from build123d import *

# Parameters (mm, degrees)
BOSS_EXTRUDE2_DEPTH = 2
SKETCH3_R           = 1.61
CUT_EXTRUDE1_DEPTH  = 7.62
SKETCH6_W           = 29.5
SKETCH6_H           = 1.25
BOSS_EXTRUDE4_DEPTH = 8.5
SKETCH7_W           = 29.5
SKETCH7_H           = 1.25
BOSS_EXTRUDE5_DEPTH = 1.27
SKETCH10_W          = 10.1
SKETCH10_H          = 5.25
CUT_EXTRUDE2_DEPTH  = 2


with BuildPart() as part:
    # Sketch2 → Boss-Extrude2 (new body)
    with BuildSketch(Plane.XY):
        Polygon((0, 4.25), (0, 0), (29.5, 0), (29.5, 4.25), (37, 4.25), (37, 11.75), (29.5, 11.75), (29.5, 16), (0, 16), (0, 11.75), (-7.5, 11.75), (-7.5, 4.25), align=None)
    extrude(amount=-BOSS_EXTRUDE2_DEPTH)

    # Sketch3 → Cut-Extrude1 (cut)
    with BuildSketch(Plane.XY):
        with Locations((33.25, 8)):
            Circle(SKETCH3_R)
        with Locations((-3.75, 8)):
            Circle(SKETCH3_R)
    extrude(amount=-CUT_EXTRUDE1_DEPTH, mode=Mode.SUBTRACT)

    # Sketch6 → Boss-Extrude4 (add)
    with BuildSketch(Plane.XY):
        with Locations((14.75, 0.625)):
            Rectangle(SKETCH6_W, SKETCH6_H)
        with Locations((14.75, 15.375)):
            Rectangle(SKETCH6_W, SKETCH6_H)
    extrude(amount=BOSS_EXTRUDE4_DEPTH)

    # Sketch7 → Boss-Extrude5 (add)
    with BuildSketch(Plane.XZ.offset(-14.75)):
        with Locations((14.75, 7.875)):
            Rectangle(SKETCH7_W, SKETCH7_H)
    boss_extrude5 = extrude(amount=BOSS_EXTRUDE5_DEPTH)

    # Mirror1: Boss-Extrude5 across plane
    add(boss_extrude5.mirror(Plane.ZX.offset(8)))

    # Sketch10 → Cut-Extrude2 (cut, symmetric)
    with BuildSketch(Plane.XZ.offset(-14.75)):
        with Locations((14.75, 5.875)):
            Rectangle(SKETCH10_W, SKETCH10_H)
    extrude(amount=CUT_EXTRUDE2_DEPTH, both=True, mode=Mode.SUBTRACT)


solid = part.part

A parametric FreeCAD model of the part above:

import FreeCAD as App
import Part
import Sketcher
from FreeCAD import Vector
Q = App.Units.Quantity

doc = App.newDocument("Part")
params = doc.addObject("Spreadsheet::Sheet", "Params")
for row, (alias, value) in enumerate([
    ("sketch1_width", "29.5 mm"),
    ("sketch1_width2", "7.5 mm"),
    ("pad1_length", "2 mm"),
    ("sketch2_diameter", "3.22 mm"),
    ("pocket1_length", "7.62 mm"),
    ("sketch3_width", "29.5 mm"),
    ("sketch3_height", "1.25 mm"),
    ("pad2_length", "8.5 mm"),
    ("sketch4_width", "29.5 mm"),
    ("sketch4_height", "1.25 mm"),
    ("pad3_length", "1.27 mm"),
    ("sketch5_width", "10.1 mm"),
    ("sketch5_height", "5.25 mm"),
    ("pocket2_length", "4 mm"),
], start=1):
    params.set(f"A{row}", alias)
    params.set(f"B{row}", "=" + value)
    params.setAlias(f"B{row}", alias)

body = doc.addObject("PartDesign::Body", "Body")

# Sketch on XY plane
sketch1 = body.newObject("Sketcher::SketchObject", "Sketch")
sketch1.AttachmentSupport = (doc.getObject("XY_Plane"), [""])
sketch1.MapMode = "FlatFace"
sketch1.addGeometry(Part.LineSegment(Vector(0, 4.2, 0), Vector(0, 0, 0)), False)
sketch1.addGeometry(Part.LineSegment(Vector(0, 0, 0), Vector(29.5, 0, 0)), False)
sketch1.addGeometry(Part.LineSegment(Vector(29.5, 0, 0), Vector(29.5, 4.2, 0)), False)
sketch1.addGeometry(Part.LineSegment(Vector(29.5, 4.2, 0), Vector(37, 4.2, 0)), False)
sketch1.addGeometry(Part.LineSegment(Vector(37, 4.2, 0), Vector(37, 11.8, 0)), False)
sketch1.addGeometry(Part.LineSegment(Vector(37, 11.8, 0), Vector(29.5, 11.8, 0)), False)
sketch1.addGeometry(Part.LineSegment(Vector(29.5, 11.8, 0), Vector(29.5, 16, 0)), False)
sketch1.addGeometry(Part.LineSegment(Vector(29.5, 16, 0), Vector(0, 16, 0)), False)
sketch1.addGeometry(Part.LineSegment(Vector(0, 16, 0), Vector(0, 11.8, 0)), False)
sketch1.addGeometry(Part.LineSegment(Vector(0, 11.8, 0), Vector(-7.5, 11.8, 0)), False)
sketch1.addGeometry(Part.LineSegment(Vector(-7.5, 11.8, 0), Vector(-7.5, 4.2, 0)), False)
sketch1.addGeometry(Part.LineSegment(Vector(-7.5, 4.2, 0), Vector(0, 4.2, 0)), False)
sketch1.addConstraint(Sketcher.Constraint("Coincident", 0, 2, 1, 1))
sketch1.addConstraint(Sketcher.Constraint("Coincident", 1, 2, 2, 1))
sketch1.addConstraint(Sketcher.Constraint("Coincident", 2, 2, 3, 1))
sketch1.addConstraint(Sketcher.Constraint("Coincident", 3, 2, 4, 1))
sketch1.addConstraint(Sketcher.Constraint("Coincident", 4, 2, 5, 1))
sketch1.addConstraint(Sketcher.Constraint("Coincident", 5, 2, 6, 1))
sketch1.addConstraint(Sketcher.Constraint("Coincident", 6, 2, 7, 1))
sketch1.addConstraint(Sketcher.Constraint("Coincident", 7, 2, 8, 1))
sketch1.addConstraint(Sketcher.Constraint("Coincident", 8, 2, 9, 1))
sketch1.addConstraint(Sketcher.Constraint("Coincident", 9, 2, 10, 1))
sketch1.addConstraint(Sketcher.Constraint("Coincident", 10, 2, 11, 1))
sketch1.addConstraint(Sketcher.Constraint("Coincident", 11, 2, 0, 1))
sketch1.addConstraint(Sketcher.Constraint("Vertical", 0))
sketch1.addConstraint(Sketcher.Constraint("Horizontal", 1))
sketch1.addConstraint(Sketcher.Constraint("Vertical", 2))
sketch1.addConstraint(Sketcher.Constraint("Horizontal", 3))
sketch1.addConstraint(Sketcher.Constraint("Vertical", 4))
sketch1.addConstraint(Sketcher.Constraint("Horizontal", 5))
sketch1.addConstraint(Sketcher.Constraint("Vertical", 6))
sketch1.addConstraint(Sketcher.Constraint("Horizontal", 7))
sketch1.addConstraint(Sketcher.Constraint("Vertical", 8))
sketch1.addConstraint(Sketcher.Constraint("Horizontal", 9))
sketch1.addConstraint(Sketcher.Constraint("Vertical", 10))
sketch1.addConstraint(Sketcher.Constraint("Horizontal", 11))
sketch1.addConstraint(Sketcher.Constraint("Coincident", 0, 2, -1, 1))
sketch1.addConstraint(Sketcher.Constraint("PointOnObject", 7, 2, -2))
sketch1.addConstraint(Sketcher.Constraint("Horizontal", 5, 2, 8, 2))
sketch1.addConstraint(Sketcher.Constraint("Horizontal", 3, 2, 10, 2))
sketch1.addConstraint(Sketcher.Constraint("Vertical", 2, 2, 5, 2))
sketch1.addConstraint(Sketcher.Constraint("Equal", 5, 9))
sketch1.addConstraint(Sketcher.Constraint("Equal", 11, 4))
sketch1.addConstraint(Sketcher.Constraint("Equal", 2, 6))
sketch1.addConstraint(Sketcher.Constraint("DistanceX", 1, 1, 1, 2, Q("29.5 mm")))
sketch1.addConstraint(Sketcher.Constraint("DistanceX", 3, 1, 3, 2, Q("7.5 mm")))
sketch1.addConstraint(Sketcher.Constraint("DistanceY", -1, 1, 6, 2, Q("16 mm")))
sketch1.setExpression("Constraints[32]", "Params.sketch1_width")
sketch1.setExpression("Constraints[33]", "Params.sketch1_width2")
pad1 = body.newObject("PartDesign::Pad", "Pad")
pad1.Profile = sketch1
pad1.setExpression("Length", "Params.pad1_length")
pad1.Reversed = True

# Sketch on XY plane
sketch2 = body.newObject("Sketcher::SketchObject", "Sketch001")
sketch2.AttachmentSupport = (doc.getObject("XY_Plane"), [""])
sketch2.MapMode = "FlatFace"
sketch2.addGeometry(Part.Circle(Vector(33.2, 8, 0), Vector(0, 0, 1), 1.6), False)
sketch2.addGeometry(Part.Circle(Vector(-3.8, 8, 0), Vector(0, 0, 1), 1.6), False)
sketch2.addConstraint(Sketcher.Constraint("Equal", 0, 1))
sketch2.addConstraint(Sketcher.Constraint("Horizontal", 0, 3, 1, 3))
sketch2.addConstraint(Sketcher.Constraint("Diameter", 0, Q("3.22 mm")))
sketch2.addConstraint(Sketcher.Constraint("DistanceY", -1, 1, 0, 3, Q("8 mm")))
sketch2.addConstraint(Sketcher.Constraint("DistanceX", 1, 3, 0, 3, Q("37 mm")))
sketch2.addConstraint(Sketcher.Constraint("DistanceX", -1, 1, 0, 3, Q("33.25 mm")))
sketch2.setExpression("Constraints[2]", "Params.sketch2_diameter")
pocket1 = body.newObject("PartDesign::Pocket", "Pocket")
pocket1.Profile = sketch2
pocket1.setExpression("Length", "Params.pocket1_length")

# Sketch on XY plane
sketch3 = body.newObject("Sketcher::SketchObject", "Sketch002")
sketch3.AttachmentSupport = (doc.getObject("XY_Plane"), [""])
sketch3.MapMode = "FlatFace"
sketch3.addGeometry(Part.LineSegment(Vector(0, 1.2, 0), Vector(0, 0, 0)), False)
sketch3.addGeometry(Part.LineSegment(Vector(0, 0, 0), Vector(29.5, 0, 0)), False)
sketch3.addGeometry(Part.LineSegment(Vector(29.5, 0, 0), Vector(29.5, 1.2, 0)), False)
sketch3.addGeometry(Part.LineSegment(Vector(29.5, 1.2, 0), Vector(0, 1.2, 0)), False)
sketch3.addGeometry(Part.LineSegment(Vector(0, 16, 0), Vector(0, 14.8, 0)), False)
sketch3.addGeometry(Part.LineSegment(Vector(0, 14.8, 0), Vector(29.5, 14.8, 0)), False)
sketch3.addGeometry(Part.LineSegment(Vector(29.5, 14.8, 0), Vector(29.5, 16, 0)), False)
sketch3.addGeometry(Part.LineSegment(Vector(29.5, 16, 0), Vector(0, 16, 0)), False)
sketch3.addConstraint(Sketcher.Constraint("Coincident", 0, 2, 1, 1))
sketch3.addConstraint(Sketcher.Constraint("Coincident", 1, 2, 2, 1))
sketch3.addConstraint(Sketcher.Constraint("Coincident", 2, 2, 3, 1))
sketch3.addConstraint(Sketcher.Constraint("Coincident", 3, 2, 0, 1))
sketch3.addConstraint(Sketcher.Constraint("Coincident", 4, 2, 5, 1))
sketch3.addConstraint(Sketcher.Constraint("Coincident", 5, 2, 6, 1))
sketch3.addConstraint(Sketcher.Constraint("Coincident", 6, 2, 7, 1))
sketch3.addConstraint(Sketcher.Constraint("Coincident", 7, 2, 4, 1))
sketch3.addConstraint(Sketcher.Constraint("Vertical", 0))
sketch3.addConstraint(Sketcher.Constraint("Horizontal", 1))
sketch3.addConstraint(Sketcher.Constraint("Vertical", 2))
sketch3.addConstraint(Sketcher.Constraint("Horizontal", 3))
sketch3.addConstraint(Sketcher.Constraint("Vertical", 4))
sketch3.addConstraint(Sketcher.Constraint("Horizontal", 5))
sketch3.addConstraint(Sketcher.Constraint("Vertical", 6))
sketch3.addConstraint(Sketcher.Constraint("Horizontal", 7))
sketch3.addConstraint(Sketcher.Constraint("Coincident", 0, 2, -1, 1))
sketch3.addConstraint(Sketcher.Constraint("PointOnObject", 4, 2, -2))
sketch3.addConstraint(Sketcher.Constraint("Vertical", 2, 2, 5, 2))
sketch3.addConstraint(Sketcher.Constraint("Equal", 2, 4))
sketch3.addConstraint(Sketcher.Constraint("DistanceX", 1, 1, 1, 2, Q("29.5 mm")))
sketch3.addConstraint(Sketcher.Constraint("DistanceY", -1, 1, 6, 2, Q("16 mm")))
sketch3.addConstraint(Sketcher.Constraint("DistanceY", 0, 2, 0, 1, Q("1.25 mm")))
sketch3.setExpression("Constraints[20]", "Params.sketch3_width")
sketch3.setExpression("Constraints[22]", "Params.sketch3_height")
pad2 = body.newObject("PartDesign::Pad", "Pad001")
pad2.Profile = sketch3
pad2.setExpression("Length", "Params.pad2_length")

# Sketch on XZ plane
sketch4 = body.newObject("Sketcher::SketchObject", "Sketch003")
sketch4.AttachmentSupport = (doc.getObject("XZ_Plane"), [""])
sketch4.MapMode = "FlatFace"
sketch4.AttachmentOffset = App.Placement(Vector(0, 0, -14.75), App.Rotation())
sketch4.addGeometry(Part.LineSegment(Vector(0, 8.5, 0), Vector(0, 7.2, 0)), False)
sketch4.addGeometry(Part.LineSegment(Vector(0, 7.2, 0), Vector(29.5, 7.2, 0)), False)
sketch4.addGeometry(Part.LineSegment(Vector(29.5, 7.2, 0), Vector(29.5, 8.5, 0)), False)
sketch4.addGeometry(Part.LineSegment(Vector(29.5, 8.5, 0), Vector(0, 8.5, 0)), False)
sketch4.addConstraint(Sketcher.Constraint("Coincident", 0, 2, 1, 1))
sketch4.addConstraint(Sketcher.Constraint("Coincident", 1, 2, 2, 1))
sketch4.addConstraint(Sketcher.Constraint("Coincident", 2, 2, 3, 1))
sketch4.addConstraint(Sketcher.Constraint("Coincident", 3, 2, 0, 1))
sketch4.addConstraint(Sketcher.Constraint("Vertical", 0))
sketch4.addConstraint(Sketcher.Constraint("Horizontal", 1))
sketch4.addConstraint(Sketcher.Constraint("Vertical", 2))
sketch4.addConstraint(Sketcher.Constraint("Horizontal", 3))
sketch4.addConstraint(Sketcher.Constraint("PointOnObject", 0, 2, -2))
sketch4.addConstraint(Sketcher.Constraint("DistanceX", 1, 1, 1, 2, Q("29.5 mm")))
sketch4.addConstraint(Sketcher.Constraint("DistanceY", 0, 2, 0, 1, Q("1.25 mm")))
sketch4.addConstraint(Sketcher.Constraint("DistanceY", -1, 1, 2, 2, Q("8.5 mm")))
sketch4.setExpression("Constraints[9]", "Params.sketch4_width")
sketch4.setExpression("Constraints[10]", "Params.sketch4_height")
pad3 = body.newObject("PartDesign::Pad", "Pad002")
pad3.Profile = sketch4
pad3.setExpression("Length", "Params.pad3_length")
doc.recompute()

datumplane = body.newObject("PartDesign::Plane", "DatumPlane")
datumplane.AttachmentSupport = (doc.getObject("XZ_Plane"), [""])
datumplane.MapMode = "FlatFace"
datumplane.AttachmentOffset = App.Placement(Vector(0, 0, -8), App.Rotation())
mirrored = body.newObject("PartDesign::Mirrored", "Mirrored")
mirrored.Originals = [pad3]
mirrored.MirrorPlane = (datumplane, [""])
body.Tip = mirrored

# Sketch on XZ plane
sketch5 = body.newObject("Sketcher::SketchObject", "Sketch004")
sketch5.AttachmentSupport = (doc.getObject("XZ_Plane"), [""])
sketch5.MapMode = "FlatFace"
sketch5.AttachmentOffset = App.Placement(Vector(0, 0, -14.75), App.Rotation())
sketch5.addGeometry(Part.LineSegment(Vector(10, 8, 0), Vector(10, 3, 0)), False)
sketch5.addGeometry(Part.LineSegment(Vector(10, 3, 0), Vector(20, 3, 0)), False)
sketch5.addGeometry(Part.LineSegment(Vector(20, 3, 0), Vector(20, 8, 0)), False)
sketch5.addGeometry(Part.LineSegment(Vector(20, 8, 0), Vector(10, 8, 0)), False)
sketch5.addConstraint(Sketcher.Constraint("Coincident", 0, 2, 1, 1))
sketch5.addConstraint(Sketcher.Constraint("Coincident", 1, 2, 2, 1))
sketch5.addConstraint(Sketcher.Constraint("Coincident", 2, 2, 3, 1))
sketch5.addConstraint(Sketcher.Constraint("Coincident", 3, 2, 0, 1))
sketch5.addConstraint(Sketcher.Constraint("Vertical", 0))
sketch5.addConstraint(Sketcher.Constraint("Horizontal", 1))
sketch5.addConstraint(Sketcher.Constraint("Vertical", 2))
sketch5.addConstraint(Sketcher.Constraint("Horizontal", 3))
sketch5.addConstraint(Sketcher.Constraint("DistanceX", 1, 1, 1, 2, Q("10.1 mm")))
sketch5.addConstraint(Sketcher.Constraint("DistanceY", 0, 2, 0, 1, Q("5.25 mm")))
sketch5.addConstraint(Sketcher.Constraint("DistanceX", -1, 1, 0, 2, Q("9.7 mm")))
sketch5.addConstraint(Sketcher.Constraint("DistanceY", -1, 1, 2, 2, Q("8.5 mm")))
sketch5.setExpression("Constraints[8]", "Params.sketch5_width")
sketch5.setExpression("Constraints[9]", "Params.sketch5_height")
pocket2 = body.newObject("PartDesign::Pocket", "Pocket001")
pocket2.Profile = sketch5
pocket2.setExpression("Length", "Params.pocket2_length")
pocket2.Midplane = True

doc.recompute()
